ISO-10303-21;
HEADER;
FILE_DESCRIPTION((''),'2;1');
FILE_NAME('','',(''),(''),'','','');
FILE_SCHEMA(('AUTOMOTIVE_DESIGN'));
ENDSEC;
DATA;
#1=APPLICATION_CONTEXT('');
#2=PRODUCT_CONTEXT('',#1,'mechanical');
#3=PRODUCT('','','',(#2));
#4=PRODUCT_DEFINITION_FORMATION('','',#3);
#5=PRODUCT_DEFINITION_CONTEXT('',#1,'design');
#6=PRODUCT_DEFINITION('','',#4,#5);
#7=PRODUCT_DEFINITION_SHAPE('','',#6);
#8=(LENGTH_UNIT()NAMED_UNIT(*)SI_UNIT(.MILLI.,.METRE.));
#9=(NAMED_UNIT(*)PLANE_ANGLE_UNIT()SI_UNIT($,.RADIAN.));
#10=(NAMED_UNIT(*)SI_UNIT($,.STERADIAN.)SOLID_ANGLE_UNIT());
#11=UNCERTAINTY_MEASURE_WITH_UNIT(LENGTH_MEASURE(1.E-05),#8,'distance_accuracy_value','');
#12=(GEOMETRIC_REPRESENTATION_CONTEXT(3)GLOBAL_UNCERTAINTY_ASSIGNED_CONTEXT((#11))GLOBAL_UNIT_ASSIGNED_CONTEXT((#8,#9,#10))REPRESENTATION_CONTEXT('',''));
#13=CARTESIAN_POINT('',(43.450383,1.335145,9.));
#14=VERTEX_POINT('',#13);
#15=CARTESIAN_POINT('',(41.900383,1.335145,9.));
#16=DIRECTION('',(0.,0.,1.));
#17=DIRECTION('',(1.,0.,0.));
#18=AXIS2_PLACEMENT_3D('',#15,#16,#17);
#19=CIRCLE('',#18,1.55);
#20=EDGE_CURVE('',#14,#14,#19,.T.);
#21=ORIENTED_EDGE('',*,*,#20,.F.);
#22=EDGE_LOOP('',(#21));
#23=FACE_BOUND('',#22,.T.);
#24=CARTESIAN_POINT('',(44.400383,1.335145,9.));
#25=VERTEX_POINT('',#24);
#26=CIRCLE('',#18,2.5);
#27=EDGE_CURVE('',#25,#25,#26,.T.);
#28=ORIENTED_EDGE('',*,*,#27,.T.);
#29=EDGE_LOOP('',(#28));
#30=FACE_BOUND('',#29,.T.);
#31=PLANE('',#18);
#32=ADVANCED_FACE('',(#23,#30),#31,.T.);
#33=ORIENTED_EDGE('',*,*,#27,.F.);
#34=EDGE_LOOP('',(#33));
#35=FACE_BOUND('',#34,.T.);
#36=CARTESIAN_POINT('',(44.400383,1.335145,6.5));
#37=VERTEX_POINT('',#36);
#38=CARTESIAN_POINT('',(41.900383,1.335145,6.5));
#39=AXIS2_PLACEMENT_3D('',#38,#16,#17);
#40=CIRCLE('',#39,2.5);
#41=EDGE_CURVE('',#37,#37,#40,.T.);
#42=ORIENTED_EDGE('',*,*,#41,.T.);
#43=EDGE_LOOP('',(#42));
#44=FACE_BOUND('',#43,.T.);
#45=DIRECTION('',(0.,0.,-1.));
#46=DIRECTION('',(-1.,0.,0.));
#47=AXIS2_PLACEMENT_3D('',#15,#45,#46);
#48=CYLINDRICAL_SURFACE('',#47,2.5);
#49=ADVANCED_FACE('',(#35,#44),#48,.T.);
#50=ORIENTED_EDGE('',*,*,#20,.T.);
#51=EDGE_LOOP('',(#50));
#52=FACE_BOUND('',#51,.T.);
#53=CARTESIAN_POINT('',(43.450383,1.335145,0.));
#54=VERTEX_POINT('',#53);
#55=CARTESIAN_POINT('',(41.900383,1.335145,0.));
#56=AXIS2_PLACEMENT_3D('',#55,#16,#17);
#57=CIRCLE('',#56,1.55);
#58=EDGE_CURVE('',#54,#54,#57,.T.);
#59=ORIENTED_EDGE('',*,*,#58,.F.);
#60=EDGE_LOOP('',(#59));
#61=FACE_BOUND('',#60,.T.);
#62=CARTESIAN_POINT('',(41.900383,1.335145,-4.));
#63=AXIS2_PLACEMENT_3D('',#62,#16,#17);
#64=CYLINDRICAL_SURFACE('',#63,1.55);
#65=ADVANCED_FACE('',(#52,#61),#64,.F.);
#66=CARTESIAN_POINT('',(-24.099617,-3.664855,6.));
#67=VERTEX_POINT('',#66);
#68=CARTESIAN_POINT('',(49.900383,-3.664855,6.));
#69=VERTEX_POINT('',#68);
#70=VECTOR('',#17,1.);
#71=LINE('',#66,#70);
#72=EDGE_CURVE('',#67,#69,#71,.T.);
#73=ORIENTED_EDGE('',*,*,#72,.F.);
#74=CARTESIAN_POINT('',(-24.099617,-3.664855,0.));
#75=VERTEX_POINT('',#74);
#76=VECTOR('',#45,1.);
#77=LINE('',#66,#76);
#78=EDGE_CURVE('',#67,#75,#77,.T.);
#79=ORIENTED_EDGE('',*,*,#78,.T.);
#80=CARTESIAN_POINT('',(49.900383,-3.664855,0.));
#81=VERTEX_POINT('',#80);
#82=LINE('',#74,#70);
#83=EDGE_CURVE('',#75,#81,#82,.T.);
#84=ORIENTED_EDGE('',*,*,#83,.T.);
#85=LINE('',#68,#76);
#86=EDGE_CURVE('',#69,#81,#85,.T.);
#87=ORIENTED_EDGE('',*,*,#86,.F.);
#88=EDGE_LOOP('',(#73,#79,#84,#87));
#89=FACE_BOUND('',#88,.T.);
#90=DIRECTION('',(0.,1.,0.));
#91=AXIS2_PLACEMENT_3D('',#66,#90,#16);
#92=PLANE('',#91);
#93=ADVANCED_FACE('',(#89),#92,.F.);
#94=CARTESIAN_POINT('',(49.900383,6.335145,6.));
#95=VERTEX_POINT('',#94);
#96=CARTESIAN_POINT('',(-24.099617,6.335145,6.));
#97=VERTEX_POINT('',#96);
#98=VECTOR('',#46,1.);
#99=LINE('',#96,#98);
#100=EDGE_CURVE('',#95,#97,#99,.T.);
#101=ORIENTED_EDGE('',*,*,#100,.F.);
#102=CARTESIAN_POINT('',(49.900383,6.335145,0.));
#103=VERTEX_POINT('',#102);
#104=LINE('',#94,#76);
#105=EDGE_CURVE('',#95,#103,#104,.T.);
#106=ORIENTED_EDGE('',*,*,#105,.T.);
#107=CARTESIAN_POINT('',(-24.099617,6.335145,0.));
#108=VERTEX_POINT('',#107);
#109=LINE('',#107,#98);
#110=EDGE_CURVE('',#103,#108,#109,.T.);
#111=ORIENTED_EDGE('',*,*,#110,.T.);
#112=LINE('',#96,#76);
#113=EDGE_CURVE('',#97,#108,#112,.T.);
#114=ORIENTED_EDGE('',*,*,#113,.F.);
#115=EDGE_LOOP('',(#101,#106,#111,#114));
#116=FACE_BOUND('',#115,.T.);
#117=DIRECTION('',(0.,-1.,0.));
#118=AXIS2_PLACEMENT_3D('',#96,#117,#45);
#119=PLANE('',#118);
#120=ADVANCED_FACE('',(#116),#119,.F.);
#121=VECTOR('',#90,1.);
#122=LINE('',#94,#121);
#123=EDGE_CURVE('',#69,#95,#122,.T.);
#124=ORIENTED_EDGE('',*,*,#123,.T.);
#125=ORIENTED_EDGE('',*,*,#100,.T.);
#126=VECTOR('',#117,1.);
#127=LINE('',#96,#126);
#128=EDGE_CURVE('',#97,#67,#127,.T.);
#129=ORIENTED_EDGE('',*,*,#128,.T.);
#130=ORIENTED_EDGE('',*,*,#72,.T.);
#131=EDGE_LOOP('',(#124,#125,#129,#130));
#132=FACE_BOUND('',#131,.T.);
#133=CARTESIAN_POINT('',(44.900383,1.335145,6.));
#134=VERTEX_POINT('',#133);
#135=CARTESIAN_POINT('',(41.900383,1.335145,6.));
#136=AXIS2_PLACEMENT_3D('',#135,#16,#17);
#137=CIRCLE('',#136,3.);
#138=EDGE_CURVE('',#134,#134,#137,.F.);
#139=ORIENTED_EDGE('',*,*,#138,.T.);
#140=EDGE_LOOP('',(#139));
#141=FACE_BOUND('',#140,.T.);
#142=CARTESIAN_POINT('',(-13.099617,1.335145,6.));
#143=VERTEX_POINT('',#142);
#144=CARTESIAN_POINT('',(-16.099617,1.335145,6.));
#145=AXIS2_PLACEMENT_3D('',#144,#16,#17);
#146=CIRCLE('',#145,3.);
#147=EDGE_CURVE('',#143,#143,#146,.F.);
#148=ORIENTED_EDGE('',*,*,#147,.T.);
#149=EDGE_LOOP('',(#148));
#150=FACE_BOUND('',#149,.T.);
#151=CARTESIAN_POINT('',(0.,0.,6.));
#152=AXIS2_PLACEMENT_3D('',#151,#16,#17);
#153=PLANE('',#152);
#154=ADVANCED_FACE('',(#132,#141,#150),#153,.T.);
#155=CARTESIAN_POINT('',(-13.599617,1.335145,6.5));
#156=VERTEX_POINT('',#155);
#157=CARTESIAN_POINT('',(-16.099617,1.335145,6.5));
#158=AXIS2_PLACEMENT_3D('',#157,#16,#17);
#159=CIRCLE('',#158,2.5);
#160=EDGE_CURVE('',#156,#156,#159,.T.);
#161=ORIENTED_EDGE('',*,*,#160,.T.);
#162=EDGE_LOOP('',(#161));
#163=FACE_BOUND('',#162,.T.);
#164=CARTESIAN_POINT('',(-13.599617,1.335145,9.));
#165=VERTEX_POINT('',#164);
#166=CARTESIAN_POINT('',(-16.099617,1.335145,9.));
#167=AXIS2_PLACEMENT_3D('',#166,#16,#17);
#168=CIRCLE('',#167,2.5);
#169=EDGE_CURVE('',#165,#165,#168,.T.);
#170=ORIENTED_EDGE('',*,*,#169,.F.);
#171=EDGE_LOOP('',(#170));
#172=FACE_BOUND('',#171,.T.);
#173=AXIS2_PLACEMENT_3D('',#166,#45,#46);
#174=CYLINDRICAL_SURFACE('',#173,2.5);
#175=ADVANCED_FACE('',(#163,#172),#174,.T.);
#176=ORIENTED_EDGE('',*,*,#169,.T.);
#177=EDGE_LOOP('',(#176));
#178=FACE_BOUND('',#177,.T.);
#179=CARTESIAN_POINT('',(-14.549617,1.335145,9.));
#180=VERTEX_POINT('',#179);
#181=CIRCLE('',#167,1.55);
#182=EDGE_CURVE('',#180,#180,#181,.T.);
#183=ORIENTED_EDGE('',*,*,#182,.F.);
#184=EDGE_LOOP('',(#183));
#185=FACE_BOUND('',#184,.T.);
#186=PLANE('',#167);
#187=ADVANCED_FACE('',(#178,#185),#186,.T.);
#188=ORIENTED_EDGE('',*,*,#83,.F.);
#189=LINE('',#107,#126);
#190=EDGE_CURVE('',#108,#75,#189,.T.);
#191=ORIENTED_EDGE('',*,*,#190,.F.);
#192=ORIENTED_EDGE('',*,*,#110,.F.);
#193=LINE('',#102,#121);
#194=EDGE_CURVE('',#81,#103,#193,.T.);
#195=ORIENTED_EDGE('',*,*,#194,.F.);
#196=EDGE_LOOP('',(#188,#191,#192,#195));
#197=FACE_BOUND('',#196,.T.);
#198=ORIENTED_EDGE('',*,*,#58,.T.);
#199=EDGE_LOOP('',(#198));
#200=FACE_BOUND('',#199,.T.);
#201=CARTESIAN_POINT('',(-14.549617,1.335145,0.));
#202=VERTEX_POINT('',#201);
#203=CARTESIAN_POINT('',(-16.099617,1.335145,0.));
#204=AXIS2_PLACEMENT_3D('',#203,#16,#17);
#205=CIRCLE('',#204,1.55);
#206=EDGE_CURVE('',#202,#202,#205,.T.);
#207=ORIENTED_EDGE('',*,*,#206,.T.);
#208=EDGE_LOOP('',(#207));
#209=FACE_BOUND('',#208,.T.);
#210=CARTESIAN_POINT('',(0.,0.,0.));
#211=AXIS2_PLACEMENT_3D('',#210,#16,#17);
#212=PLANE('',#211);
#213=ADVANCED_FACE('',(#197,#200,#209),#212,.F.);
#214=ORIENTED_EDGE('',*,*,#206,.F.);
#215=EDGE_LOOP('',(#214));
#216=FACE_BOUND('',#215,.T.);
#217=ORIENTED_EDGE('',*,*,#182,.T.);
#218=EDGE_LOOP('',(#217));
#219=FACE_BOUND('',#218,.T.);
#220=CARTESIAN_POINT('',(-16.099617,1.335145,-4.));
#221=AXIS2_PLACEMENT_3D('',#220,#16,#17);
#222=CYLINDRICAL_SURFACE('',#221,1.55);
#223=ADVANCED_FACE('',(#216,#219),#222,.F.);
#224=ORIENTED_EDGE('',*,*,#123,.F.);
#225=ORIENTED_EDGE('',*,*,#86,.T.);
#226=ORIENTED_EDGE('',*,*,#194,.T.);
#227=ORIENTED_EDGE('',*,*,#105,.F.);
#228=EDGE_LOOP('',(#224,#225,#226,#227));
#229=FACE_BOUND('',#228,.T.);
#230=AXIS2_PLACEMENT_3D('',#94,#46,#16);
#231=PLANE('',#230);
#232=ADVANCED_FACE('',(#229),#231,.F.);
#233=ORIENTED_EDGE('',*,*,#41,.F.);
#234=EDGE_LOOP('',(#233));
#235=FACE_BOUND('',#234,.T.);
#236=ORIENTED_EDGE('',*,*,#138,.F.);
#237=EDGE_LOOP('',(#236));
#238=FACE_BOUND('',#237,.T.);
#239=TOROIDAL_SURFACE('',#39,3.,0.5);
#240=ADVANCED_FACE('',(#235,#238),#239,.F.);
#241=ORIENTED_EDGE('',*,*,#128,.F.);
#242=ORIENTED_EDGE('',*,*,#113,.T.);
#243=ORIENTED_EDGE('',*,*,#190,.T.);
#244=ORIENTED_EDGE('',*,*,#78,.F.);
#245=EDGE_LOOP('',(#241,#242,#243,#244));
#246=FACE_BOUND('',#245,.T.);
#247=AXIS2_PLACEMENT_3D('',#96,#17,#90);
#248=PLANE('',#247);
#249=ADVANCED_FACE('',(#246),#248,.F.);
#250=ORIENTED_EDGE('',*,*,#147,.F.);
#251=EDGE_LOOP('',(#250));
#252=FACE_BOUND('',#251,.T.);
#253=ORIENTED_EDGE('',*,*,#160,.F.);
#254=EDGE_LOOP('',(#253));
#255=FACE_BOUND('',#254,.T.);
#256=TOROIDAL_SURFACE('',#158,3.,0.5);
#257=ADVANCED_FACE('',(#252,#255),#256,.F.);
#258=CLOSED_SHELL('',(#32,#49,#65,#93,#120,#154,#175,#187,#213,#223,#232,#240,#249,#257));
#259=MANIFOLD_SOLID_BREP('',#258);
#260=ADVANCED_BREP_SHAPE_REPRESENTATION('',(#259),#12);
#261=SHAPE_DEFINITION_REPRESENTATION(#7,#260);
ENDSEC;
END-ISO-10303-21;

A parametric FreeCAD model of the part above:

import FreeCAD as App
import Part
import Sketcher

V = App.Vector


def edges_at(feature, points):
    """Names of the edges that pass closest to the given points."""
    edges = feature.Shape.Edges
    near = lambda p: min(range(len(edges)), key=lambda i: edges[i].distToShape(Part.Vertex(*p))[0])
    return sorted({f"Edge{near(p) + 1}" for p in points})


def add_polygon(sketch, points):
    """Adds a closed chain of lines whose ends are joined by coincident constraints."""
    first, n = sketch.GeometryCount, len(points)
    for a, b in zip(points, points[1:] + points[:1]):
        sketch.addGeometry(Part.LineSegment(App.Vector(*a, 0), App.Vector(*b, 0)), False)
    for i in range(n):
        sketch.addConstraint(Sketcher.Constraint("Coincident", first + i, 2, first + (i + 1) % n, 1))

doc = App.newDocument("Part")
body = doc.addObject("PartDesign::Body", "Body")

sketch1 = body.newObject("Sketcher::SketchObject", "Sketch")
sketch1.AttachmentSupport = (doc.getObject("XY_Plane"), [""])
sketch1.MapMode = "FlatFace"
add_polygon(sketch1, [(-24, 6), (-24, -4), (50, -4), (50, 6)])
sketch1.addConstraint([
    Sketcher.Constraint("Vertical", 0),
    Sketcher.Constraint("Horizontal", 1),
    Sketcher.Constraint("Vertical", 2),
    Sketcher.Constraint("Horizontal", 3),
    Sketcher.Constraint("DistanceX", 1, 1, 1, 2, 74.0),
    Sketcher.Constraint("DistanceY", 0, 2, 0, 1, 10.0),
    Sketcher.Constraint("DistanceX", 0, 2, -1, 1, 24.099617),
    Sketcher.Constraint("DistanceY", 0, 2, -1, 1, 3.664855),
])
pad1 = body.newObject("PartDesign::Pad", "Pad")
pad1.Profile = sketch1
pad1.Length = 6

sketch2 = body.newObject("Sketcher::SketchObject", "Sketch001")
sketch2.AttachmentSupport = (doc.getObject("XY_Plane"), [""])
sketch2.MapMode = "FlatFace"
sketch2.AttachmentOffset = App.Placement(V(0, 0, 6), App.Rotation())
sketch2.addGeometry([
    Part.Circle(V(-16.1, 1.3, 0), V(0, 0, 1), 1.6),
    Part.Circle(V(41.9, 1.3, 0), V(0, 0, 1), 1.6),
], False)
sketch2.addConstraint([
    Sketcher.Constraint("Equal", 0, 1),
    Sketcher.Constraint("Horizontal", 0, 3, 1, 3),
    Sketcher.Constraint("Diameter", 0, 3.1),
    Sketcher.Constraint("DistanceX", 0, 3, 1, 3, 58.0),
    Sketcher.Constraint("DistanceX", 0, 3, -1, 1, 16.099617),
    Sketcher.Constraint("DistanceY", -1, 1, 0, 3, 1.335145),
])
pocket1 = body.newObject("PartDesign::Pocket", "Pocket")
pocket1.Profile = sketch2
pocket1.Length = 10

sketch3 = body.newObject("Sketcher::SketchObject", "Sketch002")
sketch3.AttachmentSupport = (doc.getObject("XY_Plane"), [""])
sketch3.MapMode = "FlatFace"
sketch3.AttachmentOffset = App.Placement(V(0, 0, 6), App.Rotation())
sketch3.addGeometry([
    Part.Circle(V(-16.1, 1.3, 0), V(0, 0, 1), 2.5),
    Part.Circle(V(-16.1, 1.3, 0), V(0, 0, 1), 1.6),
    Part.Circle(V(41.9, 1.3, 0), V(0, 0, 1), 2.5),
    Part.Circle(V(41.9, 1.3, 0), V(0, 0, 1), 1.6),
], False)
sketch3.addConstraint([
    Sketcher.Constraint("Coincident", 1, 3, 0, 3),
    Sketcher.Constraint("Coincident", 3, 3, 2, 3),
    Sketcher.Constraint("Equal", 0, 2),
    Sketcher.Constraint("Equal", 1, 3),
    Sketcher.Constraint("Horizontal", 1, 3, 2, 3),
    Sketcher.Constraint("Diameter", 0, 5.0),
    Sketcher.Constraint("Diameter", 1, 3.1),
    Sketcher.Constraint("DistanceX", 0, 3, 2, 3, 58.0),
    Sketcher.Constraint("DistanceX", 0, 3, -1, 1, 16.099617),
    Sketcher.Constraint("DistanceY", -1, 1, 0, 3, 1.335145),
])
pad2 = body.newObject("PartDesign::Pad", "Pad001")
pad2.Profile = sketch3
pad2.Length = 3
doc.recompute()

fillet = body.newObject("PartDesign::Fillet", "Fillet")
fillet.Base = (pad2, edges_at(pad2, [(39.4, 1.335, 6)]))
fillet.Radius = 0.5
doc.recompute()

fillet2 = body.newObject("PartDesign::Fillet", "Fillet001")
fillet2.Base = (fillet, edges_at(fillet, [(-18.6, 1.335, 6)]))
fillet2.Radius = 0.5

doc.recompute()
